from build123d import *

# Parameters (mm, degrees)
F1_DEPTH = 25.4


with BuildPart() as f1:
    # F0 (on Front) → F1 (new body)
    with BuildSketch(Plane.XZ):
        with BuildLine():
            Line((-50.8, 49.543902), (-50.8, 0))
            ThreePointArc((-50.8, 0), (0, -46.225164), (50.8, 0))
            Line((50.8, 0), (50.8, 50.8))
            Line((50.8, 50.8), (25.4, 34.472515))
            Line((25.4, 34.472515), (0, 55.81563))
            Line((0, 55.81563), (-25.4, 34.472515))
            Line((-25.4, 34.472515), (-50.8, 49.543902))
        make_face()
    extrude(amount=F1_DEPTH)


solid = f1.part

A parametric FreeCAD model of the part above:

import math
import FreeCAD as App
import Part
import Sketcher

V = App.Vector
Q = App.Units.Quantity

doc = App.newDocument("Part")
body = doc.addObject("PartDesign::Body", "Body")

sketch1 = body.newObject("Sketcher::SketchObject", "Sketch")
sketch1.AttachmentSupport = (doc.getObject("XZ_Plane"), [""])
sketch1.MapMode = "FlatFace"
sketch1.addGeometry([
    Part.LineSegment(V(-50.8, 49.543902, 0), V(-50.8, 0, 0)),
    Part.ArcOfCircle(Part.Circle(V(0, 4.801218, 0), V(0, 0, 1), 51.026382), math.radians(-174.600889), math.radians(-5.399111)),
    Part.LineSegment(V(50.8, 0, 0), V(50.8, 50.8, 0)),
    Part.LineSegment(V(50.8, 50.8, 0), V(25.4, 34.472515, 0)),
    Part.LineSegment(V(25.4, 34.472515, 0), V(0, 55.81563, 0)),
    Part.LineSegment(V(0, 55.81563, 0), V(-25.4, 34.472515, 0)),
    Part.LineSegment(V(-25.4, 34.472515, 0), V(-50.8, 49.543902, 0)),
], False)
sketch1.addConstraint([
    Sketcher.Constraint("Coincident", 0, 2, 1, 1),
    Sketcher.Constraint("Coincident", 1, 2, 2, 1),
    Sketcher.Constraint("Coincident", 2, 2, 3, 1),
    Sketcher.Constraint("Coincident", 3, 2, 4, 1),
    Sketcher.Constraint("Coincident", 4, 2, 5, 1),
    Sketcher.Constraint("Coincident", 5, 2, 6, 1),
    Sketcher.Constraint("Coincident", 6, 2, 0, 1),
    Sketcher.Constraint("Vertical", 0),
    Sketcher.Constraint("Vertical", 2),
    Sketcher.Constraint("Symmetric", 0, 2, 1, 2, -1, 1),
    Sketcher.Constraint("Symmetric", 3, 2, 5, 2, -2),
    Sketcher.Constraint("PointOnObject", 1, 3, -2),
    Sketcher.Constraint("PointOnObject", 4, 2, -2),
    Sketcher.Constraint("DistanceY", 2, 1, 2, 2, Q("2 in")),
    Sketcher.Constraint("DistanceX", 0, 2, -1, 1, Q("2 in")),
    Sketcher.Constraint("DistanceX", -1, 1, 3, 2, Q("1 in")),
    Sketcher.Constraint("Radius", 1, Q("51.026382 mm")),
    Sketcher.Constraint("Distance", 6, Q("29.534839 mm")),
    Sketcher.Constraint("DistanceY", 0, 2, 0, 1, Q("49.543902 mm")),
    Sketcher.Constraint("DistanceY", -1, 1, 4, 2, Q("55.81563 mm")),
])
pad1 = body.newObject("PartDesign::Pad", "Pad")
pad1.Profile = sketch1
pad1.Length = Q("1 in")

doc.recompute()
